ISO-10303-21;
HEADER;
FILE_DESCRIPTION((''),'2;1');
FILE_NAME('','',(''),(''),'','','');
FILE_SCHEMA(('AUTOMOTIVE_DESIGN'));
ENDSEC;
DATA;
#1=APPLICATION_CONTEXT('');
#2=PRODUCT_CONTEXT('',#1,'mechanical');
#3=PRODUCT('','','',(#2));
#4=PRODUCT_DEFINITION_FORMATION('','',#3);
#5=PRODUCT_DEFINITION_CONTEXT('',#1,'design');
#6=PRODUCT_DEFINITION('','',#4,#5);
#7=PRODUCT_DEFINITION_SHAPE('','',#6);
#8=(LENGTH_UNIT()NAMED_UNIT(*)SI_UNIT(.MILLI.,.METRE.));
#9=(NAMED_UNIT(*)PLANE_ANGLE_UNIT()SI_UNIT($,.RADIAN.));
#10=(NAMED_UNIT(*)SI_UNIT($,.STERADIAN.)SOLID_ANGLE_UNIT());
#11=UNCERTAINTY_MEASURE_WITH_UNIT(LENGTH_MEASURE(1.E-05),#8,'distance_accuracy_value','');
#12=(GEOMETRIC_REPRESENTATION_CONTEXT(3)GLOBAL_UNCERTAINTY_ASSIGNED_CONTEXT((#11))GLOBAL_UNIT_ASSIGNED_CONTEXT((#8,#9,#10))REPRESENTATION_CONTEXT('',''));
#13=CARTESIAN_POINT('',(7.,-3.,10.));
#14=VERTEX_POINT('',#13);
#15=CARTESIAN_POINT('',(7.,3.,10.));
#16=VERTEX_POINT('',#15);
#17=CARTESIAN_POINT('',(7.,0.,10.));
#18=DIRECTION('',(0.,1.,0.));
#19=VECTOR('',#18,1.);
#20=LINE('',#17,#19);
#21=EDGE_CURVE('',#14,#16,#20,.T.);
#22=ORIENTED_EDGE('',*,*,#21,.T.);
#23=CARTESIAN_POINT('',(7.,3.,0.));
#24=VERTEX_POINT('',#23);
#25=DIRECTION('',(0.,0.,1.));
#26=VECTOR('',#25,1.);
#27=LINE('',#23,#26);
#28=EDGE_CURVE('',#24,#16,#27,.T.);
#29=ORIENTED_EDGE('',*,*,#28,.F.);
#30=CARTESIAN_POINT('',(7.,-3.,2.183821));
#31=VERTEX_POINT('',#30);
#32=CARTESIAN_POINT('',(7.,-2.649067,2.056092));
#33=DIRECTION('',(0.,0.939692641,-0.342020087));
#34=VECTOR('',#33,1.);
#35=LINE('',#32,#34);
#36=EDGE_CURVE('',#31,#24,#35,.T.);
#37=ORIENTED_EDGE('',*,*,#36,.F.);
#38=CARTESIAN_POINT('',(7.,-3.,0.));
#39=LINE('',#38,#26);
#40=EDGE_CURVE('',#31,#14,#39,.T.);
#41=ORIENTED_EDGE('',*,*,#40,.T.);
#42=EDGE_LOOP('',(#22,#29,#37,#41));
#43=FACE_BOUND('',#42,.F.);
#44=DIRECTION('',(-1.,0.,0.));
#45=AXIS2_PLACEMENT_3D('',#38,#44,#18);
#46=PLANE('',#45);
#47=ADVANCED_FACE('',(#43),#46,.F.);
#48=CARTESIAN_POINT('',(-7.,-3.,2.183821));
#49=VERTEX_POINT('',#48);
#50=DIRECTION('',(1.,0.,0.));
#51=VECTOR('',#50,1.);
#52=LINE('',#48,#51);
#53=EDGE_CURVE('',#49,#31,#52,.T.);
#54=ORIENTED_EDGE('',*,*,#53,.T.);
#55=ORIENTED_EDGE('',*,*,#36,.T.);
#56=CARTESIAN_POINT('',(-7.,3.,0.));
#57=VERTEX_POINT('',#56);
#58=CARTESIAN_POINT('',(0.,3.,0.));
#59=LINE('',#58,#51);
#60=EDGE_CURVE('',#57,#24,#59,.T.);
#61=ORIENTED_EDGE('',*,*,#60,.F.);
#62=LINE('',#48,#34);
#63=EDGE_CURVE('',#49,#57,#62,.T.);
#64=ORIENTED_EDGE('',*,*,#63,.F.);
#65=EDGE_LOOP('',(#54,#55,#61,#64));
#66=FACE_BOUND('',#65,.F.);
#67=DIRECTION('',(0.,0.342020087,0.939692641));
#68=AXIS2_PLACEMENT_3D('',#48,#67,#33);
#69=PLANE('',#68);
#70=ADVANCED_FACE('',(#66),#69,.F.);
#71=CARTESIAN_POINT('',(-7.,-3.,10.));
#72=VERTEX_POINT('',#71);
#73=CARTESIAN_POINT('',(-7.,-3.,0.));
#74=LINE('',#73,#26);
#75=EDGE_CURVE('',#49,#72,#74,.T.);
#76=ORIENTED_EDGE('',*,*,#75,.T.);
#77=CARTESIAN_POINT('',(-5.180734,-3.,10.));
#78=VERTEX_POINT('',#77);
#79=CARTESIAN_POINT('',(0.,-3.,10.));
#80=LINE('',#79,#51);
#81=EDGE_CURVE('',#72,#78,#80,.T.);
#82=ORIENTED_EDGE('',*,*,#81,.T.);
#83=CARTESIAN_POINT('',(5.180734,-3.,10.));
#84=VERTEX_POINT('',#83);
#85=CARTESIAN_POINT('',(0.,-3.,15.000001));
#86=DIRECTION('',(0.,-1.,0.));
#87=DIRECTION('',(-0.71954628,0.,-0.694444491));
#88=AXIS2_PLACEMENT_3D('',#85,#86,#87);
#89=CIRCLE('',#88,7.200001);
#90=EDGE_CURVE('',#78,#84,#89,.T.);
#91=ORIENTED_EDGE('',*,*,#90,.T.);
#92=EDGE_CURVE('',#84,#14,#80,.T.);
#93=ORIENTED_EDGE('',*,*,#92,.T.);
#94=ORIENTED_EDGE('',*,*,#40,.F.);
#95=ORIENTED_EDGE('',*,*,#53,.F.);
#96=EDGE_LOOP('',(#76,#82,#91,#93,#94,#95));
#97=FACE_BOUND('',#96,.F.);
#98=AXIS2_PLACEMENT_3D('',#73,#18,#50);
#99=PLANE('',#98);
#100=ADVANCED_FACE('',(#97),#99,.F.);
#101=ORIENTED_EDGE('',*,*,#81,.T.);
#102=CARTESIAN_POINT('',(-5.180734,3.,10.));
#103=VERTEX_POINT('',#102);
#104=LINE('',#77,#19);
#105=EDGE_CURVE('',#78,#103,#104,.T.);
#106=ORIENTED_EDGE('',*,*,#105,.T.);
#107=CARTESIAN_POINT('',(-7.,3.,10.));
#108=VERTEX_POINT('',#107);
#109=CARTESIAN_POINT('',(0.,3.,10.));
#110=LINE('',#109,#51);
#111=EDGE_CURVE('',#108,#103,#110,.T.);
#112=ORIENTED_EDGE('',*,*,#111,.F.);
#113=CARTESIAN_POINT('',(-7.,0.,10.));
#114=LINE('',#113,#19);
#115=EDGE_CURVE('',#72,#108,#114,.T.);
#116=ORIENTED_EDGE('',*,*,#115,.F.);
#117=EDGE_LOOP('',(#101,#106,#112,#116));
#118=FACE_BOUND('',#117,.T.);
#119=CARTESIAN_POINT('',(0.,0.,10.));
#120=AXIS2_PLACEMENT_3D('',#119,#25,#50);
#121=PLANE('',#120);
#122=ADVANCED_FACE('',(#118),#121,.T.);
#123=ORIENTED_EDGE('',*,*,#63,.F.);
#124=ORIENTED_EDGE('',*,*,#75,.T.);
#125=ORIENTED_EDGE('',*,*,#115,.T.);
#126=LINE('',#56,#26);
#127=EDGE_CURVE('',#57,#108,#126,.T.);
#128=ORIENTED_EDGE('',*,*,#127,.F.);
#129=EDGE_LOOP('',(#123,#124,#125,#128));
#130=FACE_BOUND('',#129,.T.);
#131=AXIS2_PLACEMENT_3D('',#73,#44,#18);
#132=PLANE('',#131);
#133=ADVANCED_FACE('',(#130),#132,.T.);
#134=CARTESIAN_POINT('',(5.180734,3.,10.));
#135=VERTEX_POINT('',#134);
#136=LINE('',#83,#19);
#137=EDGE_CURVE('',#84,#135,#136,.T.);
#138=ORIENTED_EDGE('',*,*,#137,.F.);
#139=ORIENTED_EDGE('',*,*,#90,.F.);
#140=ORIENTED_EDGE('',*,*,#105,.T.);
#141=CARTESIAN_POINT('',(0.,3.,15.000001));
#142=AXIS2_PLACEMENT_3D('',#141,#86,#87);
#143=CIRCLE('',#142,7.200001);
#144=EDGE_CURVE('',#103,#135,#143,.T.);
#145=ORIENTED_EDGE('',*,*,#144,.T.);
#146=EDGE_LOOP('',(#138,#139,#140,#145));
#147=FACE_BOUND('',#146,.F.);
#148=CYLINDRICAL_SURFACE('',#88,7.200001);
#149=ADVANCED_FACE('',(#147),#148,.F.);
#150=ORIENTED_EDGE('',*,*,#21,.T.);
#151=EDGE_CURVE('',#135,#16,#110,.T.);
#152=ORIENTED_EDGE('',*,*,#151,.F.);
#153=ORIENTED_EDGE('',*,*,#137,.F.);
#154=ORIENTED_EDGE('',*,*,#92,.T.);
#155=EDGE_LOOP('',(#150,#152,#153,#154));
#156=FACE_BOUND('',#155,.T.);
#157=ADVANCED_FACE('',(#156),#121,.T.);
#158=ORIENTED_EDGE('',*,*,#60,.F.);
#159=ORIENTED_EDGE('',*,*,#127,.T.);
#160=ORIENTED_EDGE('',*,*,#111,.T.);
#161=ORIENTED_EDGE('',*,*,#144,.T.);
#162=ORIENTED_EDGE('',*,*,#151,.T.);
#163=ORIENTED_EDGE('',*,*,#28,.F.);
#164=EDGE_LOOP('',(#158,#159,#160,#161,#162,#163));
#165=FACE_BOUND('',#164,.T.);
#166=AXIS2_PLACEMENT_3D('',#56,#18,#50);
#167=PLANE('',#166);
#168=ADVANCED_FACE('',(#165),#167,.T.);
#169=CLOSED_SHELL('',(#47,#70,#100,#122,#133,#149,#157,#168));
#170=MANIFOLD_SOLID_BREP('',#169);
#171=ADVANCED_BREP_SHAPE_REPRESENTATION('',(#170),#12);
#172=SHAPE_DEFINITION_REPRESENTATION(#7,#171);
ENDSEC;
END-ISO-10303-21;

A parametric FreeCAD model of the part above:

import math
import FreeCAD as App
import Part
import Sketcher
from FreeCAD import Vector
Q = App.Units.Quantity

doc = App.newDocument("Part")
params = doc.addObject("Spreadsheet::Sheet", "Params")
for row, (alias, value) in enumerate([
    ("sketch1_width", "14 mm"),
    ("sketch1_height", "6 mm"),
    ("pad1_length", "10 mm"),
    ("sketch2_radius", "7.199998 mm"),
    ("pocket1_length", "25 mm"),
    ("sketch3_width", "6 mm"),
    ("pocket2_length", "25 mm"),
], start=1):
    params.set(f"A{row}", alias)
    params.set(f"B{row}", "=" + value)
    params.setAlias(f"B{row}", alias)

body = doc.addObject("PartDesign::Body", "Body")

sketch1 = body.newObject("Sketcher::SketchObject", "Sketch")
sketch1.AttachmentSupport = (doc.getObject("XY_Plane"), [""])
sketch1.MapMode = "FlatFace"
sketch1.addGeometry([
    Part.LineSegment(Vector(-7, 3, 0), Vector(-7, -3, 0)),
    Part.LineSegment(Vector(-7, -3, 0), Vector(7, -3, 0)),
    Part.LineSegment(Vector(7, -3, 0), Vector(7, 3, 0)),
    Part.LineSegment(Vector(7, 3, 0), Vector(-7, 3, 0)),
], False)
sketch1.addConstraint([
    Sketcher.Constraint("Coincident", 0, 2, 1, 1),
    Sketcher.Constraint("Coincident", 1, 2, 2, 1),
    Sketcher.Constraint("Coincident", 2, 2, 3, 1),
    Sketcher.Constraint("Coincident", 3, 2, 0, 1),
    Sketcher.Constraint("Vertical", 0),
    Sketcher.Constraint("Horizontal", 1),
    Sketcher.Constraint("Vertical", 2),
    Sketcher.Constraint("Horizontal", 3),
    Sketcher.Constraint("Symmetric", 0, 2, 2, 2, -1, 1),
    Sketcher.Constraint("DistanceX", 1, 1, 1, 2, 14.0),
    Sketcher.Constraint("DistanceY", 0, 2, 0, 1, 6.0),
])
sketch1.setExpression("Constraints[9]", "Params.sketch1_width")
sketch1.setExpression("Constraints[10]", "Params.sketch1_height")
pad1 = body.newObject("PartDesign::Pad", "Pad")
pad1.Profile = sketch1
pad1.setExpression("Length", "Params.pad1_length")

sketch2 = body.newObject("Sketcher::SketchObject", "Sketch001")
sketch2.AttachmentSupport = (doc.getObject("XZ_Plane"), [""])
sketch2.MapMode = "FlatFace"
sketch2.AttachmentOffset = App.Placement(Vector(0, 0, 3), App.Rotation())
sketch2.addGeometry([
    Part.ArcOfCircle(Part.Circle(Vector(0, 15, 0), Vector(0, 0, 1), 7), math.radians(-44), math.radians(0)),
    Part.ArcOfCircle(Part.Circle(Vector(0, 15, 0), Vector(0, 0, 1), 7), math.radians(0), math.radians(224)),
    Part.ArcOfCircle(Part.Circle(Vector(0, 15, 0), Vector(0, 0, 1), 7), math.radians(-136), math.radians(-44)),
], False)
sketch2.addConstraint([
    Sketcher.Constraint("Tangent", 0, 2, 1, 1),
    Sketcher.Constraint("Tangent", 1, 2, 2, 1),
    Sketcher.Constraint("Tangent", 2, 2, 0, 1),
    Sketcher.Constraint("Symmetric", 1, 2, 2, 2, -2),
    Sketcher.Constraint("Horizontal", 2, 3, 0, 2),
    Sketcher.Constraint("Radius", 0, 7.199998),
    Sketcher.Constraint("DistanceY", -1, 1, 0, 3, 14.999999),
    Sketcher.Constraint("DistanceY", -1, 1, 1, 2, 10.0),
])
sketch2.setExpression("Constraints[5]", "Params.sketch2_radius")
pocket1 = body.newObject("PartDesign::Pocket", "Pocket")
pocket1.Profile = sketch2
pocket1.setExpression("Length", "Params.pocket1_length")

sketch3 = body.newObject("Sketcher::SketchObject", "Sketch002")
sketch3.AttachmentSupport = (doc.getObject("YZ_Plane"), [""])
sketch3.MapMode = "FlatFace"
sketch3.AttachmentOffset = App.Placement(Vector(0, 0, -7), App.Rotation())
sketch3.addGeometry([
    Part.LineSegment(Vector(-3, 2.2, 0), Vector(3, 0, 0)),
    Part.LineSegment(Vector(3, 0, 0), Vector(-3, 0, 0)),
    Part.LineSegment(Vector(-3, 0, 0), Vector(-3, 2.2, 0)),
], False)
sketch3.addConstraint([
    Sketcher.Constraint("Coincident", 0, 2, 1, 1),
    Sketcher.Constraint("Coincident", 1, 2, 2, 1),
    Sketcher.Constraint("Coincident", 2, 2, 0, 1),
    Sketcher.Constraint("Horizontal", 1),
    Sketcher.Constraint("Vertical", 2),
    Sketcher.Constraint("Symmetric", 0, 2, 1, 2, -1, 1),
    Sketcher.Constraint("DistanceX", 1, 2, 1, 1, 6.0),
    Sketcher.Constraint("Angle", 0, Q("-19.999997 deg")),
])
sketch3.setExpression("Constraints[6]", "Params.sketch3_width")
pocket2 = body.newObject("PartDesign::Pocket", "Pocket001")
pocket2.Profile = sketch3
pocket2.setExpression("Length", "Params.pocket2_length")
pocket2.Reversed = True

doc.recompute()
